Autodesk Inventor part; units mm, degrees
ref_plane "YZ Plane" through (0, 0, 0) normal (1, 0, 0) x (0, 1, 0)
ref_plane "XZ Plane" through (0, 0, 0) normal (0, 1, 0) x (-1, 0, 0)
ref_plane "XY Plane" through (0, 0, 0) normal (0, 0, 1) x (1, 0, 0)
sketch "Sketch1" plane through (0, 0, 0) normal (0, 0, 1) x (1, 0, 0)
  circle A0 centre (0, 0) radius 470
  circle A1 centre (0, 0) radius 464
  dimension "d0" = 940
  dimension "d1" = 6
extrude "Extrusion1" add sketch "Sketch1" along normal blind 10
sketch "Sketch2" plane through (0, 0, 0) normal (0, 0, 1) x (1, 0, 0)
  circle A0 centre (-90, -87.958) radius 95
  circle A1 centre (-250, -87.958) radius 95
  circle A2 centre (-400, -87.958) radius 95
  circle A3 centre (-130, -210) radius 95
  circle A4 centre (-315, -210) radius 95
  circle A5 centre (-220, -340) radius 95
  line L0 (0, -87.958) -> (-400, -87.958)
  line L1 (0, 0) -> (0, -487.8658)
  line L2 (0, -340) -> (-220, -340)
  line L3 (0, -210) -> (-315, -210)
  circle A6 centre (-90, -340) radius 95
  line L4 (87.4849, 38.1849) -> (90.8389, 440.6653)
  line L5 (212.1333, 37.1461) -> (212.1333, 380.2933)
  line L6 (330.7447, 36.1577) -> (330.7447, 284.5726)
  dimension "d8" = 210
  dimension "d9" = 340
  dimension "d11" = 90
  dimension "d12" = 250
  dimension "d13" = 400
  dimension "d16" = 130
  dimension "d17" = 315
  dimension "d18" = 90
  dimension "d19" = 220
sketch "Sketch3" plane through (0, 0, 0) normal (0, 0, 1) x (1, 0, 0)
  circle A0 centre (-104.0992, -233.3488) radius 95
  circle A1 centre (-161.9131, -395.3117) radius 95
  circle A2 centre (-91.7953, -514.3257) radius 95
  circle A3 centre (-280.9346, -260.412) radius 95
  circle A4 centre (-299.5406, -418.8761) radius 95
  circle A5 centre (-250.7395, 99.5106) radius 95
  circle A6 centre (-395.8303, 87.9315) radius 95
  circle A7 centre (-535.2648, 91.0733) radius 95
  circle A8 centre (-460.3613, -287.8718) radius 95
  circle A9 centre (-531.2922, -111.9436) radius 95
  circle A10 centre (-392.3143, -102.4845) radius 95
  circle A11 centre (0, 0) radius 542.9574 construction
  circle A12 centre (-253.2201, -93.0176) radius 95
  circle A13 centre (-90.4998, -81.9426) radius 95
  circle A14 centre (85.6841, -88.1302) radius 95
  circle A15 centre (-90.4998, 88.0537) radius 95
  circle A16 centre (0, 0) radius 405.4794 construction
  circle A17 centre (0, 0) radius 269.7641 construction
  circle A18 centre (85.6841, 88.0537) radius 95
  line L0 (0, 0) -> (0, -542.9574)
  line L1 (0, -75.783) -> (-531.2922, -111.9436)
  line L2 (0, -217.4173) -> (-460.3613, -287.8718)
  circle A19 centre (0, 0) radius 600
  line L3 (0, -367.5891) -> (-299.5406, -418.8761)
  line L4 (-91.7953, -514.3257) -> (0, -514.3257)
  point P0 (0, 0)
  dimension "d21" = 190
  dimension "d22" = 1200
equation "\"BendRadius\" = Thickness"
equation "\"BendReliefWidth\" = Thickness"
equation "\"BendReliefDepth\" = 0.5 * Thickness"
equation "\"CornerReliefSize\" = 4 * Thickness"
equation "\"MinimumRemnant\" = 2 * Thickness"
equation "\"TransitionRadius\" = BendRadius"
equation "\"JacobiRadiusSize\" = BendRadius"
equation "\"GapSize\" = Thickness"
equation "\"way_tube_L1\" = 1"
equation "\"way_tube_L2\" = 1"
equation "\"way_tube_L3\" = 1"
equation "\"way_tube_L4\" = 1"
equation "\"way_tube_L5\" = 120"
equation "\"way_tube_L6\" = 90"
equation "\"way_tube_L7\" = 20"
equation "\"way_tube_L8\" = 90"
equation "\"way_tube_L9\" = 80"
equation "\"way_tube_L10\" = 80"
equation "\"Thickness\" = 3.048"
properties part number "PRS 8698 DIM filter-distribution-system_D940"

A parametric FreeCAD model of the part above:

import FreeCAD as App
import Part
import Sketcher
from FreeCAD import Vector
Q = App.Units.Quantity

doc = App.newDocument("Part")
body = doc.addObject("PartDesign::Body", "Body")

# Sketch on XY plane
sketch1 = body.newObject("Sketcher::SketchObject", "Sketch")
sketch1.AttachmentSupport = (doc.getObject("XY_Plane"), [""])
sketch1.MapMode = "FlatFace"
sketch1.addGeometry([
    Part.Circle(Vector(0, 0, 0), Vector(0, 0, 1), 470),
    Part.Circle(Vector(0, 0, 0), Vector(0, 0, 1), 464),
], False)
sketch1.addConstraint([
    Sketcher.Constraint("Coincident", 0, 3, -1, 1),
    Sketcher.Constraint("Coincident", 1, 3, -1, 1),
    Sketcher.Constraint("Diameter", 0, Q("940 mm")),
    Sketcher.Constraint("Diameter", 1, Q("928 mm")),
])
pad1 = body.newObject("PartDesign::Pad", "Pad")
pad1.Profile = sketch1
pad1.Length = 10

doc.recompute()
